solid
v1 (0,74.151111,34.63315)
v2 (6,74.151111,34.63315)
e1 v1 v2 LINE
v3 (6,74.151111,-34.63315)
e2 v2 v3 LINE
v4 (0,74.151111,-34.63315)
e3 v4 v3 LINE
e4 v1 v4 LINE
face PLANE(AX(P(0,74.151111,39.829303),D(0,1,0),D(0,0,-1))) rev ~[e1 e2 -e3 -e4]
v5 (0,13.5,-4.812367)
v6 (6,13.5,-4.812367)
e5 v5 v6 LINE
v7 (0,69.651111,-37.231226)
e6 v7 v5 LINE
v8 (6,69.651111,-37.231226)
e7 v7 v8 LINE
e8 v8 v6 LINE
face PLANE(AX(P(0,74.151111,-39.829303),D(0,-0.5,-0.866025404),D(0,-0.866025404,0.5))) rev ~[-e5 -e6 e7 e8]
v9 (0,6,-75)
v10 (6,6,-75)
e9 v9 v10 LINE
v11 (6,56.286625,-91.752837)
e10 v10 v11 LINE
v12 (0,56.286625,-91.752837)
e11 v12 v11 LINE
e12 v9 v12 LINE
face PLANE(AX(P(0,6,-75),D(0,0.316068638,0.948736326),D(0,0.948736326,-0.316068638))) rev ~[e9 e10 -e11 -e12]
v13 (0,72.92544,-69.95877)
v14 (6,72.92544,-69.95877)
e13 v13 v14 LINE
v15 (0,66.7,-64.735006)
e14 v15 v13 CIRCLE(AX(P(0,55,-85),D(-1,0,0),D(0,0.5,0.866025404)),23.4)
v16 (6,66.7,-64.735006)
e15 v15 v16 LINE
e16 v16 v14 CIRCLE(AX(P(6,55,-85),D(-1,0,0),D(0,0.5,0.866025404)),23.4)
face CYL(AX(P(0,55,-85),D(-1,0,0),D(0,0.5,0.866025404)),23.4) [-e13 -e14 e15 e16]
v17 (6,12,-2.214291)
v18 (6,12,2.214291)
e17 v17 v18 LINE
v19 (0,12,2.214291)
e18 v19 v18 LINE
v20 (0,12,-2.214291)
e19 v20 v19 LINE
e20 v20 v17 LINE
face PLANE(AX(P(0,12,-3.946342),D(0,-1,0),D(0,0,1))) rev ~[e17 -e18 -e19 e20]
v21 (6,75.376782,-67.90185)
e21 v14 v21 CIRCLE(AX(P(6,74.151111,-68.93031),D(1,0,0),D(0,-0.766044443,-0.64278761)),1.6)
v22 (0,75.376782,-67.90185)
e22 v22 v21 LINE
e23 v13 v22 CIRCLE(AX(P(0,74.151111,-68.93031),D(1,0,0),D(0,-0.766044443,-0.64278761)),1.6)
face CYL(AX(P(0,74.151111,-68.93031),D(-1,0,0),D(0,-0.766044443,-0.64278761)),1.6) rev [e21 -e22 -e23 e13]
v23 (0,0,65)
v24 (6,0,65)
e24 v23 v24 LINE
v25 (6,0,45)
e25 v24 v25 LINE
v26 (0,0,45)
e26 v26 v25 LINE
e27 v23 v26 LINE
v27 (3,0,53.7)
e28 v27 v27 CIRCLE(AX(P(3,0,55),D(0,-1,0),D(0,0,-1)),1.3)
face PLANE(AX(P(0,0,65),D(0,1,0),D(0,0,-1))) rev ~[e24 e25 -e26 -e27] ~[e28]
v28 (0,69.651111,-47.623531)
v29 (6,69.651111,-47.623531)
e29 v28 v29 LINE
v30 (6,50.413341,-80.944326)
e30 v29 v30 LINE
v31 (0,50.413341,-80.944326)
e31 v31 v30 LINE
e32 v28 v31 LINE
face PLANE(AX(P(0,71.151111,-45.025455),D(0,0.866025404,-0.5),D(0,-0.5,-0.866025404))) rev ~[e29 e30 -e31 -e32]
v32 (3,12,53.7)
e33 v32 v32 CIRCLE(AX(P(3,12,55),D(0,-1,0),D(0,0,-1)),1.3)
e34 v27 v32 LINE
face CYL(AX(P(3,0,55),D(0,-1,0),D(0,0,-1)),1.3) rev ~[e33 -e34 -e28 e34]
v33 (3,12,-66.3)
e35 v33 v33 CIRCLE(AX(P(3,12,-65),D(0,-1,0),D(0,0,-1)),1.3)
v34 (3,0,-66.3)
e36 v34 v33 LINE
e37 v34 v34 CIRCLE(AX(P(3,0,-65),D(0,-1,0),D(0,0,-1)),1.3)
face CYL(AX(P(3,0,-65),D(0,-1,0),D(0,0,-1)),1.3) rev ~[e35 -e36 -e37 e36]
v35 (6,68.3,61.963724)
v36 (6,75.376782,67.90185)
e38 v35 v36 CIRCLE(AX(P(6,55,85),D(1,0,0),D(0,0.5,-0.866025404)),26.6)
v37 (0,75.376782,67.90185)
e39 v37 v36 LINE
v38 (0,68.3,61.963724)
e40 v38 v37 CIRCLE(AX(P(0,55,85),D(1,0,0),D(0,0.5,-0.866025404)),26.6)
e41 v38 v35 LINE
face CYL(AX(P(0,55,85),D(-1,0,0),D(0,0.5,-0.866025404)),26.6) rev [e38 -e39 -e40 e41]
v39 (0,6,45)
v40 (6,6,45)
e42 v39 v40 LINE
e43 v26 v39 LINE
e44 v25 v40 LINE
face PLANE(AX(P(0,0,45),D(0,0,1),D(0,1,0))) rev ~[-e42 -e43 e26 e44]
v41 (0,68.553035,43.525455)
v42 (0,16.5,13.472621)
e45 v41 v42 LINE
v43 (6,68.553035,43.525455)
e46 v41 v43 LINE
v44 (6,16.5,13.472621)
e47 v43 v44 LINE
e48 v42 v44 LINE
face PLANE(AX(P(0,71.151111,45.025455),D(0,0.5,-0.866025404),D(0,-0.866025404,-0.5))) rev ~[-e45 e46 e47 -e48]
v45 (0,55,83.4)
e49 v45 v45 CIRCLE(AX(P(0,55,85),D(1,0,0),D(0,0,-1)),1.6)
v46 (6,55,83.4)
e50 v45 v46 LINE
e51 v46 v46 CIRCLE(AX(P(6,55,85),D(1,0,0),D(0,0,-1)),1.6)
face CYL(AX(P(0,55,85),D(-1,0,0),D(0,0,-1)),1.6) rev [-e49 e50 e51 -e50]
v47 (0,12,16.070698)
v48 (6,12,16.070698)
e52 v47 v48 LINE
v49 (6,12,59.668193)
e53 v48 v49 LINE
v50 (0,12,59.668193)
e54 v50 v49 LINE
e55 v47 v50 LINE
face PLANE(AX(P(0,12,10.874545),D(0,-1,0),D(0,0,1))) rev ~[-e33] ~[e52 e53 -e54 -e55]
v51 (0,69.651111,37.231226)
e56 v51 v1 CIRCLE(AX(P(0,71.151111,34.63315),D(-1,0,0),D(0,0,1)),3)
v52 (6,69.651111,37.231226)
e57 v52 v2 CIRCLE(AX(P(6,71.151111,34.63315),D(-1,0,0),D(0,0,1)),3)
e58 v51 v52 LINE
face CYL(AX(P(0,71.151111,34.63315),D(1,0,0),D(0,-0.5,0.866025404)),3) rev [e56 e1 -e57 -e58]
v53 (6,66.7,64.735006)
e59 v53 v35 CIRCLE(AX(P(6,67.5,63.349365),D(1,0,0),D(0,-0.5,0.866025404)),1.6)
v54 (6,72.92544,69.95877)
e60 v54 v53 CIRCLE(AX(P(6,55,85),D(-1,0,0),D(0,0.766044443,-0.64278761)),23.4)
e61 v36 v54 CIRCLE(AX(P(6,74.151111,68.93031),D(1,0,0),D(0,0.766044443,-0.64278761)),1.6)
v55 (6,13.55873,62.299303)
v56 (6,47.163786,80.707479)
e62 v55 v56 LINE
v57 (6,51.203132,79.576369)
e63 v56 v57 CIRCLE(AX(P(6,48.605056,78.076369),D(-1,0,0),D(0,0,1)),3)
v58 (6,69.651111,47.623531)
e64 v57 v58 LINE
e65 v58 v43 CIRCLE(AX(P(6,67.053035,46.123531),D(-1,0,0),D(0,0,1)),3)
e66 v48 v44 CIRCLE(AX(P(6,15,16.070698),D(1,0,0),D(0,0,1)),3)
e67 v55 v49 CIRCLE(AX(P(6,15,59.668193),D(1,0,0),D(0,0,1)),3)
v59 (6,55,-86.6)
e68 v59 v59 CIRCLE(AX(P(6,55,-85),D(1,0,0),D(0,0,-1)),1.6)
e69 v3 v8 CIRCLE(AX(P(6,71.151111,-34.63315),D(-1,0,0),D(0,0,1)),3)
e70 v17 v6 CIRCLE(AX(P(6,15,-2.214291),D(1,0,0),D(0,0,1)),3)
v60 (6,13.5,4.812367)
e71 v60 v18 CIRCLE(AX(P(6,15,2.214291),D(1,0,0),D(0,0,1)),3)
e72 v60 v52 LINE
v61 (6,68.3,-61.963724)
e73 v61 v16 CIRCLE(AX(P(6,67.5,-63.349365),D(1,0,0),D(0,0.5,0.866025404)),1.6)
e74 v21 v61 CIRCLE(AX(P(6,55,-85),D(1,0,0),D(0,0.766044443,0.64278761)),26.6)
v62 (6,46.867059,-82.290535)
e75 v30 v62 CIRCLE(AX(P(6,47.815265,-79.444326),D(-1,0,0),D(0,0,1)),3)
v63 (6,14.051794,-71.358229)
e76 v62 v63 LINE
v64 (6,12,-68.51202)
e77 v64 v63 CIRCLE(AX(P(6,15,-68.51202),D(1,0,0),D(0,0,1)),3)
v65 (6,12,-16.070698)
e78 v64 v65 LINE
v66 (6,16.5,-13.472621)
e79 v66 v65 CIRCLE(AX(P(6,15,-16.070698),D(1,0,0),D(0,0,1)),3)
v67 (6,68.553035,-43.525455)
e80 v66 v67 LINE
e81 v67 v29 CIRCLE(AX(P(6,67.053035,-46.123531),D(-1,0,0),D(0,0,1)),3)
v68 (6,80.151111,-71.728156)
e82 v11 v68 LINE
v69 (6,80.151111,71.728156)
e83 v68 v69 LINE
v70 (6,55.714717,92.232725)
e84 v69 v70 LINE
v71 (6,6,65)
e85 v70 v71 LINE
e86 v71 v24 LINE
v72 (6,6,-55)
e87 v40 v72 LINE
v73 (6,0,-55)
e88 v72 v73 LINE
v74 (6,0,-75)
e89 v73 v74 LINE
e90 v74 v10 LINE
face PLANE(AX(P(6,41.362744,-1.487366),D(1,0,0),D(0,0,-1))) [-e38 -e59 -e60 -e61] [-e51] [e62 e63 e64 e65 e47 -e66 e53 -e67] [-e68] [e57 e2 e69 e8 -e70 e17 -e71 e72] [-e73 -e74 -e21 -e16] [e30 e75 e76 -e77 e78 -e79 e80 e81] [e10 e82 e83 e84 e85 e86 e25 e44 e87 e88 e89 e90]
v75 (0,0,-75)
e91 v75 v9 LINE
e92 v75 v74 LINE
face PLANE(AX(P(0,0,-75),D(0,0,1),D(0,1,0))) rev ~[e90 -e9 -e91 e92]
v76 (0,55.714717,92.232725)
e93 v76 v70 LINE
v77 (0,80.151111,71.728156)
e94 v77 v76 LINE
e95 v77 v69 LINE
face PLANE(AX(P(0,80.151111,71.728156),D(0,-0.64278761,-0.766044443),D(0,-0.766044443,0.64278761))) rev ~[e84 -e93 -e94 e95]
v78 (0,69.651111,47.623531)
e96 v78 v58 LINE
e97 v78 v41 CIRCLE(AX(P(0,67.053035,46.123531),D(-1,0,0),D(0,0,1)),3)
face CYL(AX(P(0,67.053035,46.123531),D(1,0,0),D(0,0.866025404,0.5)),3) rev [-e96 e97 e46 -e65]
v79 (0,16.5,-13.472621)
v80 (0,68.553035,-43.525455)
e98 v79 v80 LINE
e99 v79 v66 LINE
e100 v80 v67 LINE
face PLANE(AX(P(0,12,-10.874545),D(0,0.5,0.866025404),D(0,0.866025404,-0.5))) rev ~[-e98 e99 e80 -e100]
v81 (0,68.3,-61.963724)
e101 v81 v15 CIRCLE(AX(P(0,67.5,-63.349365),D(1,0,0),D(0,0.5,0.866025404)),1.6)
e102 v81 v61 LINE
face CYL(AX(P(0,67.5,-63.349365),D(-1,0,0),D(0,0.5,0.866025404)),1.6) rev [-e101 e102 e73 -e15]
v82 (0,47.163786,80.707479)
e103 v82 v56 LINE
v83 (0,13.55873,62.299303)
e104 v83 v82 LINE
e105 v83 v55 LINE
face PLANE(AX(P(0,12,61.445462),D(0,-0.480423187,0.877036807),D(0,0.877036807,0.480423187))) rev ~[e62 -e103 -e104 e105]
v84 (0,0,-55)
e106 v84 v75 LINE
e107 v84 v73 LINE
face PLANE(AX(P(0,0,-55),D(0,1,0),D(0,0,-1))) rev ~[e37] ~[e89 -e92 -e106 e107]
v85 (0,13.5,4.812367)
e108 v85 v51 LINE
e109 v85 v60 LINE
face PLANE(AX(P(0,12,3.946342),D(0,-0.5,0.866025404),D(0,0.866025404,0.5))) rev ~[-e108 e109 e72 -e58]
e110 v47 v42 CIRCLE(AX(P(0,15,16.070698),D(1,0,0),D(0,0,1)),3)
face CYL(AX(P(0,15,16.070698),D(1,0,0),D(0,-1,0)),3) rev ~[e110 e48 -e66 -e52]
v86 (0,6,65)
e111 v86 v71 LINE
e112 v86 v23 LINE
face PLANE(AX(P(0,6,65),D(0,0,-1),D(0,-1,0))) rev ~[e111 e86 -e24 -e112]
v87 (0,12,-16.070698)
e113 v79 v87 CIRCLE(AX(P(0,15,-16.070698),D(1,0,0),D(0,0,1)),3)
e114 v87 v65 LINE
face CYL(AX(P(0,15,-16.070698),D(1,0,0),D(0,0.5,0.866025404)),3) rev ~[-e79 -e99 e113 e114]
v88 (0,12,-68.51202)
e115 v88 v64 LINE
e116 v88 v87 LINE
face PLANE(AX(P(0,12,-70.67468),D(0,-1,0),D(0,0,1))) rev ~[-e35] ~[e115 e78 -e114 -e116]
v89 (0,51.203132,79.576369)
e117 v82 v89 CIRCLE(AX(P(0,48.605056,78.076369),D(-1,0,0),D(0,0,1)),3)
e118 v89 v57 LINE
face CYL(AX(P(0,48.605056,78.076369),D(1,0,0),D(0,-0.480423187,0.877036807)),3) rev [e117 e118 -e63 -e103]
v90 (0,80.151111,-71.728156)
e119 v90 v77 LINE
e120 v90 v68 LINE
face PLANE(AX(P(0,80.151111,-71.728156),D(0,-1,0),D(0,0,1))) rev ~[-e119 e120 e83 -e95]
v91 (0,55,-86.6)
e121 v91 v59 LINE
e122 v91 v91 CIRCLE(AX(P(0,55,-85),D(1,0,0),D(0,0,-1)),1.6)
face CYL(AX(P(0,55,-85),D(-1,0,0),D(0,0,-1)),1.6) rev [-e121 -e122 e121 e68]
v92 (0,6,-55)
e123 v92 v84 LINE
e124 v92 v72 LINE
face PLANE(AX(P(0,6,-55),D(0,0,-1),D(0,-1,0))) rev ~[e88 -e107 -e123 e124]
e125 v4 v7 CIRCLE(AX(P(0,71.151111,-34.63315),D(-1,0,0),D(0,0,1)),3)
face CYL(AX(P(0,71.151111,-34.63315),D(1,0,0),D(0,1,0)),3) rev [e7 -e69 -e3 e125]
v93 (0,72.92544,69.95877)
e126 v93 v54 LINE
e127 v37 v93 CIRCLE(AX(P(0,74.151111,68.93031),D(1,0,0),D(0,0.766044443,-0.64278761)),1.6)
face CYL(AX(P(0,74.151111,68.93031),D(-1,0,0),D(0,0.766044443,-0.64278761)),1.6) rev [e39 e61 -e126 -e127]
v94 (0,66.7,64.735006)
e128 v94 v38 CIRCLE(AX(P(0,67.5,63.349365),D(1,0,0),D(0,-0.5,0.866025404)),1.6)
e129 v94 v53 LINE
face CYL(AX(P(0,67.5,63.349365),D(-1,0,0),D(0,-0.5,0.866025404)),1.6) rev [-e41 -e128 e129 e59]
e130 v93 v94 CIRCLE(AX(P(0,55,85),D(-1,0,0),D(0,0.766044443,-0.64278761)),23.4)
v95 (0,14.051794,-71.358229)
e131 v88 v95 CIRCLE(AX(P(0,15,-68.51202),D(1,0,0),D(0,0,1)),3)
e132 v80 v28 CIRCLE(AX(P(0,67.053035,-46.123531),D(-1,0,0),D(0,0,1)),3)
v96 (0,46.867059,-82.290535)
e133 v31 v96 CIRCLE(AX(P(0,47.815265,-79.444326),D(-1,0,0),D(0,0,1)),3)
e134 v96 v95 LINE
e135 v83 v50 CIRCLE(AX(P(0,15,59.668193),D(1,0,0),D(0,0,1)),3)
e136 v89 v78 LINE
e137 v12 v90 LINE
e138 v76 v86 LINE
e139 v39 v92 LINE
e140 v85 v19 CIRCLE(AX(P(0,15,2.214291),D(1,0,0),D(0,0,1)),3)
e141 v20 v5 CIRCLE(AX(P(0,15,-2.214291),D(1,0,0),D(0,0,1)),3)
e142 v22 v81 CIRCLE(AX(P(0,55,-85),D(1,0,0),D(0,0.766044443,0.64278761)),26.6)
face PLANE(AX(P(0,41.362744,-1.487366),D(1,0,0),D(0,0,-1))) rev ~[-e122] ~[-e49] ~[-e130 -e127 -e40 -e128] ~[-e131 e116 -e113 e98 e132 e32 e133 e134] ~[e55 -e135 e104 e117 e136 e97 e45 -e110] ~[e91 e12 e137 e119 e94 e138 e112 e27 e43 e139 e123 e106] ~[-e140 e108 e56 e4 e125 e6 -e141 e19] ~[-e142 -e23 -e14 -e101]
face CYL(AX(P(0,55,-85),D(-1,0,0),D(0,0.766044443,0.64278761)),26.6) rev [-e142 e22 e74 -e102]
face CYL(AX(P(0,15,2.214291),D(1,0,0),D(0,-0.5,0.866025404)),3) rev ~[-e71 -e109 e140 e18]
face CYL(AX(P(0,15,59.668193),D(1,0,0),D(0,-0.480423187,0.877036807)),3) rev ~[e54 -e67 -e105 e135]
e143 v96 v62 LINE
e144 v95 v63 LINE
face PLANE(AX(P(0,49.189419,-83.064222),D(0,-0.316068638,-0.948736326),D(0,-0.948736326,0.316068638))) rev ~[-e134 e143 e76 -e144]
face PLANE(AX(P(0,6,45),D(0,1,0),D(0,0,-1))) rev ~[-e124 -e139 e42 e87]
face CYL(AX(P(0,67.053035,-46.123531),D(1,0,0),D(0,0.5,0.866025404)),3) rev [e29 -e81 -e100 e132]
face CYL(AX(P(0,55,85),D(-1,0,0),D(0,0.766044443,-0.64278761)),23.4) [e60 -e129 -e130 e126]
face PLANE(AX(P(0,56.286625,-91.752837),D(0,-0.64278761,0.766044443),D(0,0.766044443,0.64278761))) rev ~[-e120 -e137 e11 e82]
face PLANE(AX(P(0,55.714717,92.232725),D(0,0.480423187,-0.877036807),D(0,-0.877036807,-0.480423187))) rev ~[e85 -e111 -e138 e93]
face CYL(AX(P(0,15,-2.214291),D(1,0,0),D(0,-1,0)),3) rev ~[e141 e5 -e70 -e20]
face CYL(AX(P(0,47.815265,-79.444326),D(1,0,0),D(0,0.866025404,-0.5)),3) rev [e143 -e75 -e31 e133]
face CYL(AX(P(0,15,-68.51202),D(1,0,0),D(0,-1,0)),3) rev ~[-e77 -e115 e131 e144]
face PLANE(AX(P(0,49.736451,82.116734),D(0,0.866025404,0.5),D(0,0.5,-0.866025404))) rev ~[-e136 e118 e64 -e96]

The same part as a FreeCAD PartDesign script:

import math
import FreeCAD as App
import Part
import Sketcher
Q = App.Units.Quantity


def edges_at(feature, points):
    """Names of the edges that pass closest to the given points."""
    edges = feature.Shape.Edges
    near = lambda p: min(range(len(edges)), key=lambda i: edges[i].distToShape(Part.Vertex(*p))[0])
    return sorted({f"Edge{near(p) + 1}" for p in points})

doc = App.newDocument("Part")
body = doc.addObject("PartDesign::Body", "Body")

# Sketch on YZ plane
sketch1 = body.newObject("Sketcher::SketchObject", "Sketch")
sketch1.AttachmentSupport = (doc.getObject("YZ_Plane"), [""])
sketch1.MapMode = "FlatFace"
sketch1.addGeometry([
    Part.LineSegment(App.Vector(0, 65, 0), App.Vector(0, 45, 0)),  # 0
    Part.LineSegment(App.Vector(0, 45, 0), App.Vector(6, 45, 0)),  # 1
    Part.LineSegment(App.Vector(6, 45, 0), App.Vector(6, -55, 0)),  # 2
    Part.LineSegment(App.Vector(6, -55, 0), App.Vector(0, -55, 0)),  # 3
    Part.LineSegment(App.Vector(0, -55, 0), App.Vector(0, -75, 0)),  # 4
    Part.LineSegment(App.Vector(0, -75, 0), App.Vector(6, -75, 0)),  # 5
    Part.LineSegment(App.Vector(6, -75, 0), App.Vector(56.3, -91.8, 0)),  # 6
    Part.LineSegment(App.Vector(56.3, -91.8, 0), App.Vector(80.2, -71.7, 0)),  # 7
    Part.LineSegment(App.Vector(80.2, -71.7, 0), App.Vector(80.2, 71.7, 0)),  # 8
    Part.LineSegment(App.Vector(80.2, 71.7, 0), App.Vector(55.7, 92.2, 0)),  # 9
    Part.LineSegment(App.Vector(55.7, 92.2, 0), App.Vector(6, 65, 0)),  # 10
    Part.LineSegment(App.Vector(6, 65, 0), App.Vector(0, 65, 0)),  # 11
    Part.LineSegment(App.Vector(12, 61.4, 0), App.Vector(49.7, 82.1, 0)),  # 12
    Part.LineSegment(App.Vector(49.7, 82.1, 0), App.Vector(71.2, 45, 0)),  # 13
    Part.LineSegment(App.Vector(71.2, 45, 0), App.Vector(12, 10.9, 0)),  # 14
    Part.LineSegment(App.Vector(12, 10.9, 0), App.Vector(12, 61.4, 0)),  # 15
    Part.LineSegment(App.Vector(12, 3.9, 0), App.Vector(74.2, 39.8, 0)),  # 16
    Part.LineSegment(App.Vector(74.2, 39.8, 0), App.Vector(74.2, -39.8, 0)),  # 17
    Part.LineSegment(App.Vector(74.2, -39.8, 0), App.Vector(12, -3.9, 0)),  # 18
    Part.LineSegment(App.Vector(12, -3.9, 0), App.Vector(12, 3.9, 0)),  # 19
    Part.LineSegment(App.Vector(12, -10.9, 0), App.Vector(71.2, -45, 0)),  # 20
    Part.LineSegment(App.Vector(71.2, -45, 0), App.Vector(49.2, -83.1, 0)),  # 21
    Part.LineSegment(App.Vector(49.2, -83.1, 0), App.Vector(12, -70.7, 0)),  # 22
    Part.LineSegment(App.Vector(12, -70.7, 0), App.Vector(12, -10.9, 0)),  # 23
    Part.Circle(App.Vector(55, 85, 0), App.Vector(0, 0, 1), 1.6),  # 24
    Part.ArcOfCircle(Part.Circle(App.Vector(55, 85, 0), App.Vector(0, 0, 1), 26.6), math.radians(-60), math.radians(-40)),  # 25
    Part.ArcOfCircle(Part.Circle(App.Vector(67.5, 63.3, 0), App.Vector(0, 0, 1), 1.6), math.radians(120), math.radians(300)),  # 26
    Part.ArcOfCircle(Part.Circle(App.Vector(55, 85, 0), App.Vector(0, 0, 1), 23.4), math.radians(-60), math.radians(-40)),  # 27
    Part.ArcOfCircle(Part.Circle(App.Vector(74.2, 68.9, 0), App.Vector(0, 0, 1), 1.6), math.radians(-40), math.radians(140)),  # 28
    Part.Circle(App.Vector(55, -85, 0), App.Vector(0, 0, 1), 1.6),  # 29
    Part.ArcOfCircle(Part.Circle(App.Vector(55, -85, 0), App.Vector(0, 0, 1), 26.6), math.radians(40), math.radians(60)),  # 30
    Part.ArcOfCircle(Part.Circle(App.Vector(74.2, -68.9, 0), App.Vector(0, 0, 1), 1.6), math.radians(-140), math.radians(40)),  # 31
    Part.ArcOfCircle(Part.Circle(App.Vector(55, -85, 0), App.Vector(0, 0, 1), 23.4), math.radians(40), math.radians(60)),  # 32
    Part.ArcOfCircle(Part.Circle(App.Vector(67.5, -63.3, 0), App.Vector(0, 0, 1), 1.6), math.radians(60), math.radians(240)),  # 33
], False)
sketch1.addConstraint([
    Sketcher.Constraint("Coincident", 0, 2, 1, 1),
    Sketcher.Constraint("Coincident", 1, 2, 2, 1),
    Sketcher.Constraint("Coincident", 2, 2, 3, 1),
    Sketcher.Constraint("Coincident", 3, 2, 4, 1),
    Sketcher.Constraint("Coincident", 4, 2, 5, 1),
    Sketcher.Constraint("Coincident", 5, 2, 6, 1),
    Sketcher.Constraint("Coincident", 6, 2, 7, 1),
    Sketcher.Constraint("Coincident", 7, 2, 8, 1),
    Sketcher.Constraint("Coincident", 8, 2, 9, 1),
    Sketcher.Constraint("Coincident", 9, 2, 10, 1),
    Sketcher.Constraint("Coincident", 10, 2, 11, 1),
    Sketcher.Constraint("Coincident", 11, 2, 0, 1),
    Sketcher.Constraint("Coincident", 12, 2, 13, 1),
    Sketcher.Constraint("Coincident", 13, 2, 14, 1),
    Sketcher.Constraint("Coincident", 14, 2, 15, 1),
    Sketcher.Constraint("Coincident", 15, 2, 12, 1),
    Sketcher.Constraint("Coincident", 16, 2, 17, 1),
    Sketcher.Constraint("Coincident", 17, 2, 18, 1),
    Sketcher.Constraint("Coincident", 18, 2, 19, 1),
    Sketcher.Constraint("Coincident", 19, 2, 16, 1),
    Sketcher.Constraint("Coincident", 20, 2, 21, 1),
    Sketcher.Constraint("Coincident", 21, 2, 22, 1),
    Sketcher.Constraint("Coincident", 22, 2, 23, 1),
    Sketcher.Constraint("Coincident", 23, 2, 20, 1),
    Sketcher.Constraint("Tangent", 25, 1, 26, 2),
    Sketcher.Constraint("Tangent", 26, 1, 27, 1),
    Sketcher.Constraint("Tangent", 27, 2, 28, 2),
    Sketcher.Constraint("Tangent", 28, 1, 25, 2),
    Sketcher.Constraint("Tangent", 30, 1, 31, 2),
    Sketcher.Constraint("Tangent", 31, 1, 32, 1),
    Sketcher.Constraint("Tangent", 32, 2, 33, 2),
    Sketcher.Constraint("Tangent", 33, 1, 30, 2),
    Sketcher.Constraint("Vertical", 0),
    Sketcher.Constraint("Horizontal", 1),
    Sketcher.Constraint("Vertical", 2),
    Sketcher.Constraint("Horizontal", 3),
    Sketcher.Constraint("Vertical", 4),
    Sketcher.Constraint("Horizontal", 5),
    Sketcher.Constraint("Vertical", 8),
    Sketcher.Constraint("Horizontal", 11),
    Sketcher.Constraint("Vertical", 15),
    Sketcher.Constraint("Vertical", 17),
    Sketcher.Constraint("Vertical", 19),
    Sketcher.Constraint("Vertical", 23),
    Sketcher.Constraint("Coincident", 25, 3, 24, 3),
    Sketcher.Constraint("Coincident", 27, 3, 24, 3),
    Sketcher.Constraint("Coincident", 30, 3, 29, 3),
    Sketcher.Constraint("Coincident", 32, 3, 29, 3),
    Sketcher.Constraint("Equal", 24, 26),
    Sketcher.Constraint("Equal", 28, 29),
    Sketcher.Constraint("Equal", 25, 30),
    Sketcher.Constraint("Equal", 29, 31),
    Sketcher.Constraint("Symmetric", 24, 3, 29, 3, -1),
    Sketcher.Constraint("Symmetric", 13, 2, 20, 2, -1),
    Sketcher.Constraint("Symmetric", 14, 2, 23, 2, -1),
    Sketcher.Constraint("PointOnObject", 0, 2, -2),
    Sketcher.Constraint("PointOnObject", 3, 2, -2),
    Sketcher.Constraint("Parallel", 10, 12),
    Sketcher.Constraint("Perpendicular", 13, 14),
    Sketcher.Constraint("Parallel", 14, 16),
    Sketcher.Constraint("Parallel", 18, 20),
    Sketcher.Constraint("Perpendicular", 20, 21),
    Sketcher.Constraint("Parallel", 6, 22),
    Sketcher.Constraint("Vertical", 28, 3, 31, 3),
    Sketcher.Constraint("Vertical", 26, 3, 33, 3),
    Sketcher.Constraint("Vertical", 2, 2, 5, 2),
    Sketcher.Constraint("Vertical", 5, 2, 10, 2),
    Sketcher.Constraint("Vertical", 31, 3, 16, 2),
    Sketcher.Constraint("Vertical", 15, 2, 18, 2),
    Sketcher.Constraint("Equal", 0, 4),
    Sketcher.Constraint("Diameter", 24, 3.2),
    Sketcher.Constraint("Radius", 25, 26.6),
    Sketcher.Constraint("DistanceX", 1, 1, 1, 2, 6.0),
    Sketcher.Constraint("DistanceY", 0, 2, 0, 1, 20.0),
    Sketcher.Constraint("DistanceY", 2, 2, 2, 1, 100.0),
    Sketcher.Constraint("Angle", 7, Q("40 deg")),
    Sketcher.Constraint("Angle", 9, Q("140 deg")),
    Sketcher.Constraint("Angle", 13, Q("-60 deg")),
    Sketcher.Constraint("DistanceX", -1, 1, 24, 3, 55.0),
    Sketcher.Constraint("DistanceY", -1, 1, 24, 3, 85.0),
    Sketcher.Constraint("DistanceY", -1, 1, 0, 2, 45.0),
    Sketcher.Constraint("DistanceX", -1, 1, 14, 2, 12.0),
    Sketcher.Constraint("DistanceX", 31, 3, 7, 2, 6.0),
    Sketcher.Constraint("DistanceX", 13, 2, 28, 3, 3.0),
    Sketcher.Constraint("DistanceX", -1, 1, 26, 3, 67.5),
    Sketcher.Constraint("Distance", 22, 39.198898),
    Sketcher.Constraint("DistanceY", 8, 1, 8, 2, 143.456311),
    Sketcher.Constraint("DistanceY", 13, 2, 8, 2, 26.702701),
    Sketcher.Constraint("DistanceY", 7, 2, 20, 2, 26.702701),
    Sketcher.Constraint("Distance", 10, 56.684869),
    Sketcher.Constraint("Distance", 13, 42.829319),
    Sketcher.Constraint("Distance", 14, 68.30182),
    Sketcher.Constraint("DistanceY", 17, 2, 17, 1, 79.658605),
    Sketcher.Constraint("DistanceY", 23, 1, 23, 2, 59.800135),
    Sketcher.Constraint("DistanceY", 18, 2, -1, 1, 3.946342),
])
pad1 = body.newObject("PartDesign::Pad", "Pad")
pad1.Profile = sketch1
pad1.Length = 6
doc.recompute()

fillet = body.newObject("PartDesign::Fillet", "Fillet")
fillet.Base = (pad1, edges_at(pad1, [
    (3, 49.736, 82.117),
    (3, 12, 61.445),
    (3, 12, 10.875),
    (3, 71.151, 45.025),
    (3, 74.151, 39.829),
    (3, 12, 3.946),
    (3, 12, -3.946),
    (3, 74.151, -39.829),
    (3, 71.151, -45.025),
    (3, 12, -10.875),
    (3, 12, -70.675),
    (3, 49.189, -83.064),
]))
fillet.Radius = 3

# Sketch on XZ plane
sketch2 = body.newObject("Sketcher::SketchObject", "Sketch001")
sketch2.AttachmentSupport = (doc.getObject("XZ_Plane"), [""])
sketch2.MapMode = "FlatFace"
sketch2.addGeometry(Part.Circle(App.Vector(3, 55, 0), App.Vector(0, 0, 1), 1.3), False)
sketch2.addConstraint([
    Sketcher.Constraint("Diameter", 0, 2.6),
    Sketcher.Constraint("DistanceX", -1, 1, 0, 3, 3.0),
    Sketcher.Constraint("DistanceY", -1, 1, 0, 3, 55.0),
])
pocket1 = body.newObject("PartDesign::Pocket", "Pocket")
pocket1.Profile = sketch2
pocket1.Type = "UpToFirst"

# Sketch on XZ plane
sketch3 = body.newObject("Sketcher::SketchObject", "Sketch002")
sketch3.AttachmentSupport = (doc.getObject("XZ_Plane"), [""])
sketch3.MapMode = "FlatFace"
sketch3.addGeometry(Part.Circle(App.Vector(3, -65, 0), App.Vector(0, 0, 1), 1.3), False)
sketch3.addConstraint([
    Sketcher.Constraint("Diameter", 0, 2.6),
    Sketcher.Constraint("DistanceX", -1, 1, 0, 3, 3.0),
    Sketcher.Constraint("DistanceY", 0, 3, -1, 1, 65.0),
])
pocket2 = body.newObject("PartDesign::Pocket", "Pocket001")
pocket2.Profile = sketch3
pocket2.Type = "UpToFirst"

doc.recompute()
